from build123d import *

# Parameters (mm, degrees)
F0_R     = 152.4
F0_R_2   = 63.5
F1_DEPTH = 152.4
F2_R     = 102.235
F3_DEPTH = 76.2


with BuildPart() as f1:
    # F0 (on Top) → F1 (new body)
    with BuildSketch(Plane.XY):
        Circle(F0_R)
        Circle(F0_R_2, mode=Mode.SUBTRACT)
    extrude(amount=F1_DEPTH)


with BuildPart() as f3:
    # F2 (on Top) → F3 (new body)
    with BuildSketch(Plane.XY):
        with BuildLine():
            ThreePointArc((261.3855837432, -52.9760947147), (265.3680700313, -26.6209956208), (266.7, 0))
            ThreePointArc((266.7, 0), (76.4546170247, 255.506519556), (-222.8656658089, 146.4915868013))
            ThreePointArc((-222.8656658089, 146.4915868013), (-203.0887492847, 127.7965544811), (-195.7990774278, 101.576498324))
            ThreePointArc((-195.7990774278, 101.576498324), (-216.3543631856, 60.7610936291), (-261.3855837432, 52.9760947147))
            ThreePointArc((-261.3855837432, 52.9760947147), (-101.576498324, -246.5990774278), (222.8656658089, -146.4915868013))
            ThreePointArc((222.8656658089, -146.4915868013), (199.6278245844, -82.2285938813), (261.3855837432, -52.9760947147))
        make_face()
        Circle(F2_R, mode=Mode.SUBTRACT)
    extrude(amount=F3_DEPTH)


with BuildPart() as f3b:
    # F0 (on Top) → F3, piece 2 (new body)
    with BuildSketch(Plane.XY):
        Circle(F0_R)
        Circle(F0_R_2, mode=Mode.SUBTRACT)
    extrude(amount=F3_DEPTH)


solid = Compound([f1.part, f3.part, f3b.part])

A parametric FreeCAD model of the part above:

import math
import FreeCAD as App
import Part
import Sketcher
from FreeCAD import Vector
Q = App.Units.Quantity

doc = App.newDocument("Part")
body = doc.addObject("PartDesign::Body", "Body")

# Sketch on XY plane
sketch1 = body.newObject("Sketcher::SketchObject", "Sketch")
sketch1.AttachmentSupport = (doc.getObject("XY_Plane"), [""])
sketch1.MapMode = "FlatFace"
sketch1.addGeometry(Part.Circle(Vector(0, 0, 0), Vector(0, 0, 1), 152.4), False)
sketch1.addGeometry(Part.Circle(Vector(0, 0, 0), Vector(0, 0, 1), 63.5), False)
sketch1.addConstraint(Sketcher.Constraint("Coincident", 0, 3, -1, 1))
sketch1.addConstraint(Sketcher.Constraint("Coincident", 1, 3, -1, 1))
sketch1.addConstraint(Sketcher.Constraint("Diameter", 0, Q("12 in")))
sketch1.addConstraint(Sketcher.Constraint("Diameter", 1, Q("5 in")))
pad1 = body.newObject("PartDesign::Pad", "Pad")
pad1.Profile = sketch1
pad1.Length = Q("6 in")
body2 = doc.addObject("PartDesign::Body", "Body001")

# Sketch on XY plane
sketch2 = body2.newObject("Sketcher::SketchObject", "Sketch001")
sketch2.AttachmentSupport = (doc.getObject("XY_Plane001"), [""])
sketch2.MapMode = "FlatFace"
sketch2.addGeometry(Part.ArcOfCircle(Part.Circle(Vector(0, 0, 0), Vector(0, 0, 1), 266.7), math.radians(-11.45718), math.radians(0)), False)
sketch2.addGeometry(Part.ArcOfCircle(Part.Circle(Vector(0, 0, 0), Vector(0, 0, 1), 266.7), math.radians(0), math.radians(146.682725)), False)
sketch2.addGeometry(Part.ArcOfCircle(Part.Circle(Vector(-246.599077, 101.576498, 0), Vector(0, 0, 1), 50.8), math.radians(0), math.radians(62.147749)), False)
sketch2.addGeometry(Part.ArcOfCircle(Part.Circle(Vector(-246.599077, 101.576498, 0), Vector(0, 0, 1), 50.8), math.radians(-106.922203), math.radians(0)), False)
sketch2.addGeometry(Part.ArcOfCircle(Part.Circle(Vector(0, 0, 0), Vector(0, 0, 1), 266.7), math.radians(168.54282), math.radians(326.682725)), False)
sketch2.addGeometry(Part.ArcOfCircle(Part.Circle(Vector(246.599077, -101.576498, 0), Vector(0, 0, 1), 50.8), math.radians(73.077797), math.radians(242.147749)), False)
sketch2.addGeometry(Part.Circle(Vector(0, 0, 0), Vector(0, 0, 1), 102.235), False)
sketch2.addConstraint(Sketcher.Constraint("Tangent", 0, 2, 1, 1))
sketch2.addConstraint(Sketcher.Constraint("Coincident", 1, 2, 2, 2))
sketch2.addConstraint(Sketcher.Constraint("Tangent", 2, 1, 3, 2))
sketch2.addConstraint(Sketcher.Constraint("Coincident", 3, 1, 4, 1))
sketch2.addConstraint(Sketcher.Constraint("Coincident", 4, 2, 5, 2))
sketch2.addConstraint(Sketcher.Constraint("Coincident", 5, 1, 0, 1))
sketch2.addConstraint(Sketcher.Constraint("Coincident", 0, 3, -1, 1))
sketch2.addConstraint(Sketcher.Constraint("Coincident", 4, 3, -1, 1))
sketch2.addConstraint(Sketcher.Constraint("Coincident", 6, 3, -1, 1))
sketch2.addConstraint(Sketcher.Constraint("Equal", 0, 1))
sketch2.addConstraint(Sketcher.Constraint("Equal", 2, 3))
sketch2.addConstraint(Sketcher.Constraint("Equal", 1, 4))
sketch2.addConstraint(Sketcher.Constraint("Equal", 3, 5))
sketch2.addConstraint(Sketcher.Constraint("Symmetric", 2, 3, 5, 3, -1, 1))
sketch2.addConstraint(Sketcher.Constraint("PointOnObject", 0, 2, -1))
sketch2.addConstraint(Sketcher.Constraint("Horizontal", 3, 3, 2, 1))
sketch2.addConstraint(Sketcher.Constraint("Radius", 2, Q("2 in")))
sketch2.addConstraint(Sketcher.Constraint("Radius", 0, Q("10.5 in")))
sketch2.addConstraint(Sketcher.Constraint("Diameter", 6, Q("8.05 in")))
sketch2.addConstraint(Sketcher.Constraint("DistanceY", -1, 1, 2, 3, Q("101.576498 mm")))
sketch2.addConstraint(Sketcher.Constraint("DistanceX", 2, 3, 1, 2, Q("23.733412 mm")))
pad2 = body2.newObject("PartDesign::Pad", "Pad001")
pad2.Profile = sketch2
pad2.Length = Q("3 in")
body3 = doc.addObject("PartDesign::Body", "Body002")

# Sketch on XY plane
sketch3 = body3.newObject("Sketcher::SketchObject", "Sketch002")
sketch3.AttachmentSupport = (doc.getObject("XY_Plane002"), [""])
sketch3.MapMode = "FlatFace"
sketch3.addGeometry(Part.Circle(Vector(0, 0, 0), Vector(0, 0, 1), 152.4), False)
sketch3.addGeometry(Part.Circle(Vector(0, 0, 0), Vector(0, 0, 1), 63.5), False)
sketch3.addConstraint(Sketcher.Constraint("Coincident", 0, 3, -1, 1))
sketch3.addConstraint(Sketcher.Constraint("Coincident", 1, 3, -1, 1))
sketch3.addConstraint(Sketcher.Constraint("Diameter", 0, Q("12 in")))
sketch3.addConstraint(Sketcher.Constraint("Diameter", 1, Q("5 in")))
pad3 = body3.newObject("PartDesign::Pad", "Pad002")
pad3.Profile = sketch3
pad3.Length = Q("3 in")

doc.recompute()
